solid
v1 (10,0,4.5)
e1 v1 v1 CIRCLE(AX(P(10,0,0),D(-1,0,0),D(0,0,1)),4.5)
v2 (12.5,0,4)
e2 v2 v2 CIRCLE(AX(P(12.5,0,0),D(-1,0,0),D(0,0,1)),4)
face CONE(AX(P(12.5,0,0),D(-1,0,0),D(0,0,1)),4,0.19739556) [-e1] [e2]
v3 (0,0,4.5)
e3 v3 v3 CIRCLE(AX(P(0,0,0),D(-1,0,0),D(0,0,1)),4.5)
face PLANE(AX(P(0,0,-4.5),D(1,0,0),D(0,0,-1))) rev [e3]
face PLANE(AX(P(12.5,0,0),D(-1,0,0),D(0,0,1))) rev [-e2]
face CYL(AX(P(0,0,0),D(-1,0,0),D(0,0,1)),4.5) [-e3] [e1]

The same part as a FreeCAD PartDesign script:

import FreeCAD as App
import Part
import Sketcher
Q = App.Units.Quantity


def add_polygon(sketch, points):
    """Adds a closed chain of lines whose ends are joined by coincident constraints."""
    first, n = sketch.GeometryCount, len(points)
    for a, b in zip(points, points[1:] + points[:1]):
        sketch.addGeometry(Part.LineSegment(App.Vector(*a, 0), App.Vector(*b, 0)), False)
    for i in range(n):
        sketch.addConstraint(Sketcher.Constraint("Coincident", first + i, 2, first + (i + 1) % n, 1))

doc = App.newDocument("Part")
body = doc.addObject("PartDesign::Body", "Body")

# Sketch on XZ plane
sketch1 = body.newObject("Sketcher::SketchObject", "Sketch")
sketch1.AttachmentSupport = (doc.getObject("XZ_Plane"), [""])
sketch1.MapMode = "FlatFace"
add_polygon(sketch1, [(0, 0), (12.5, 0), (12.5, -4), (10, -4.5), (0, -4.5)])  # lines 0-4
sketch1.addConstraint([
    Sketcher.Constraint("Horizontal", 0),
    Sketcher.Constraint("Vertical", 1),
    Sketcher.Constraint("Horizontal", 3),
    Sketcher.Constraint("Vertical", 4),
    Sketcher.Constraint("Coincident", 4, 2, -1, 1),
    Sketcher.Constraint("DistanceX", 3, 2, 3, 1, Q("10 mm")),
    Sketcher.Constraint("DistanceY", 1, 2, 1, 1, Q("4 mm")),
    Sketcher.Constraint("DistanceX", 0, 1, 0, 2, Q("12.5 mm")),
    Sketcher.Constraint("DistanceY", 4, 1, 4, 2, Q("4.5 mm")),
])
revolution = body.newObject("PartDesign::Revolution", "Revolution")
revolution.Profile = sketch1
revolution.ReferenceAxis = (sketch1, ["H_Axis"])
revolution.Angle = 360

doc.recompute()
